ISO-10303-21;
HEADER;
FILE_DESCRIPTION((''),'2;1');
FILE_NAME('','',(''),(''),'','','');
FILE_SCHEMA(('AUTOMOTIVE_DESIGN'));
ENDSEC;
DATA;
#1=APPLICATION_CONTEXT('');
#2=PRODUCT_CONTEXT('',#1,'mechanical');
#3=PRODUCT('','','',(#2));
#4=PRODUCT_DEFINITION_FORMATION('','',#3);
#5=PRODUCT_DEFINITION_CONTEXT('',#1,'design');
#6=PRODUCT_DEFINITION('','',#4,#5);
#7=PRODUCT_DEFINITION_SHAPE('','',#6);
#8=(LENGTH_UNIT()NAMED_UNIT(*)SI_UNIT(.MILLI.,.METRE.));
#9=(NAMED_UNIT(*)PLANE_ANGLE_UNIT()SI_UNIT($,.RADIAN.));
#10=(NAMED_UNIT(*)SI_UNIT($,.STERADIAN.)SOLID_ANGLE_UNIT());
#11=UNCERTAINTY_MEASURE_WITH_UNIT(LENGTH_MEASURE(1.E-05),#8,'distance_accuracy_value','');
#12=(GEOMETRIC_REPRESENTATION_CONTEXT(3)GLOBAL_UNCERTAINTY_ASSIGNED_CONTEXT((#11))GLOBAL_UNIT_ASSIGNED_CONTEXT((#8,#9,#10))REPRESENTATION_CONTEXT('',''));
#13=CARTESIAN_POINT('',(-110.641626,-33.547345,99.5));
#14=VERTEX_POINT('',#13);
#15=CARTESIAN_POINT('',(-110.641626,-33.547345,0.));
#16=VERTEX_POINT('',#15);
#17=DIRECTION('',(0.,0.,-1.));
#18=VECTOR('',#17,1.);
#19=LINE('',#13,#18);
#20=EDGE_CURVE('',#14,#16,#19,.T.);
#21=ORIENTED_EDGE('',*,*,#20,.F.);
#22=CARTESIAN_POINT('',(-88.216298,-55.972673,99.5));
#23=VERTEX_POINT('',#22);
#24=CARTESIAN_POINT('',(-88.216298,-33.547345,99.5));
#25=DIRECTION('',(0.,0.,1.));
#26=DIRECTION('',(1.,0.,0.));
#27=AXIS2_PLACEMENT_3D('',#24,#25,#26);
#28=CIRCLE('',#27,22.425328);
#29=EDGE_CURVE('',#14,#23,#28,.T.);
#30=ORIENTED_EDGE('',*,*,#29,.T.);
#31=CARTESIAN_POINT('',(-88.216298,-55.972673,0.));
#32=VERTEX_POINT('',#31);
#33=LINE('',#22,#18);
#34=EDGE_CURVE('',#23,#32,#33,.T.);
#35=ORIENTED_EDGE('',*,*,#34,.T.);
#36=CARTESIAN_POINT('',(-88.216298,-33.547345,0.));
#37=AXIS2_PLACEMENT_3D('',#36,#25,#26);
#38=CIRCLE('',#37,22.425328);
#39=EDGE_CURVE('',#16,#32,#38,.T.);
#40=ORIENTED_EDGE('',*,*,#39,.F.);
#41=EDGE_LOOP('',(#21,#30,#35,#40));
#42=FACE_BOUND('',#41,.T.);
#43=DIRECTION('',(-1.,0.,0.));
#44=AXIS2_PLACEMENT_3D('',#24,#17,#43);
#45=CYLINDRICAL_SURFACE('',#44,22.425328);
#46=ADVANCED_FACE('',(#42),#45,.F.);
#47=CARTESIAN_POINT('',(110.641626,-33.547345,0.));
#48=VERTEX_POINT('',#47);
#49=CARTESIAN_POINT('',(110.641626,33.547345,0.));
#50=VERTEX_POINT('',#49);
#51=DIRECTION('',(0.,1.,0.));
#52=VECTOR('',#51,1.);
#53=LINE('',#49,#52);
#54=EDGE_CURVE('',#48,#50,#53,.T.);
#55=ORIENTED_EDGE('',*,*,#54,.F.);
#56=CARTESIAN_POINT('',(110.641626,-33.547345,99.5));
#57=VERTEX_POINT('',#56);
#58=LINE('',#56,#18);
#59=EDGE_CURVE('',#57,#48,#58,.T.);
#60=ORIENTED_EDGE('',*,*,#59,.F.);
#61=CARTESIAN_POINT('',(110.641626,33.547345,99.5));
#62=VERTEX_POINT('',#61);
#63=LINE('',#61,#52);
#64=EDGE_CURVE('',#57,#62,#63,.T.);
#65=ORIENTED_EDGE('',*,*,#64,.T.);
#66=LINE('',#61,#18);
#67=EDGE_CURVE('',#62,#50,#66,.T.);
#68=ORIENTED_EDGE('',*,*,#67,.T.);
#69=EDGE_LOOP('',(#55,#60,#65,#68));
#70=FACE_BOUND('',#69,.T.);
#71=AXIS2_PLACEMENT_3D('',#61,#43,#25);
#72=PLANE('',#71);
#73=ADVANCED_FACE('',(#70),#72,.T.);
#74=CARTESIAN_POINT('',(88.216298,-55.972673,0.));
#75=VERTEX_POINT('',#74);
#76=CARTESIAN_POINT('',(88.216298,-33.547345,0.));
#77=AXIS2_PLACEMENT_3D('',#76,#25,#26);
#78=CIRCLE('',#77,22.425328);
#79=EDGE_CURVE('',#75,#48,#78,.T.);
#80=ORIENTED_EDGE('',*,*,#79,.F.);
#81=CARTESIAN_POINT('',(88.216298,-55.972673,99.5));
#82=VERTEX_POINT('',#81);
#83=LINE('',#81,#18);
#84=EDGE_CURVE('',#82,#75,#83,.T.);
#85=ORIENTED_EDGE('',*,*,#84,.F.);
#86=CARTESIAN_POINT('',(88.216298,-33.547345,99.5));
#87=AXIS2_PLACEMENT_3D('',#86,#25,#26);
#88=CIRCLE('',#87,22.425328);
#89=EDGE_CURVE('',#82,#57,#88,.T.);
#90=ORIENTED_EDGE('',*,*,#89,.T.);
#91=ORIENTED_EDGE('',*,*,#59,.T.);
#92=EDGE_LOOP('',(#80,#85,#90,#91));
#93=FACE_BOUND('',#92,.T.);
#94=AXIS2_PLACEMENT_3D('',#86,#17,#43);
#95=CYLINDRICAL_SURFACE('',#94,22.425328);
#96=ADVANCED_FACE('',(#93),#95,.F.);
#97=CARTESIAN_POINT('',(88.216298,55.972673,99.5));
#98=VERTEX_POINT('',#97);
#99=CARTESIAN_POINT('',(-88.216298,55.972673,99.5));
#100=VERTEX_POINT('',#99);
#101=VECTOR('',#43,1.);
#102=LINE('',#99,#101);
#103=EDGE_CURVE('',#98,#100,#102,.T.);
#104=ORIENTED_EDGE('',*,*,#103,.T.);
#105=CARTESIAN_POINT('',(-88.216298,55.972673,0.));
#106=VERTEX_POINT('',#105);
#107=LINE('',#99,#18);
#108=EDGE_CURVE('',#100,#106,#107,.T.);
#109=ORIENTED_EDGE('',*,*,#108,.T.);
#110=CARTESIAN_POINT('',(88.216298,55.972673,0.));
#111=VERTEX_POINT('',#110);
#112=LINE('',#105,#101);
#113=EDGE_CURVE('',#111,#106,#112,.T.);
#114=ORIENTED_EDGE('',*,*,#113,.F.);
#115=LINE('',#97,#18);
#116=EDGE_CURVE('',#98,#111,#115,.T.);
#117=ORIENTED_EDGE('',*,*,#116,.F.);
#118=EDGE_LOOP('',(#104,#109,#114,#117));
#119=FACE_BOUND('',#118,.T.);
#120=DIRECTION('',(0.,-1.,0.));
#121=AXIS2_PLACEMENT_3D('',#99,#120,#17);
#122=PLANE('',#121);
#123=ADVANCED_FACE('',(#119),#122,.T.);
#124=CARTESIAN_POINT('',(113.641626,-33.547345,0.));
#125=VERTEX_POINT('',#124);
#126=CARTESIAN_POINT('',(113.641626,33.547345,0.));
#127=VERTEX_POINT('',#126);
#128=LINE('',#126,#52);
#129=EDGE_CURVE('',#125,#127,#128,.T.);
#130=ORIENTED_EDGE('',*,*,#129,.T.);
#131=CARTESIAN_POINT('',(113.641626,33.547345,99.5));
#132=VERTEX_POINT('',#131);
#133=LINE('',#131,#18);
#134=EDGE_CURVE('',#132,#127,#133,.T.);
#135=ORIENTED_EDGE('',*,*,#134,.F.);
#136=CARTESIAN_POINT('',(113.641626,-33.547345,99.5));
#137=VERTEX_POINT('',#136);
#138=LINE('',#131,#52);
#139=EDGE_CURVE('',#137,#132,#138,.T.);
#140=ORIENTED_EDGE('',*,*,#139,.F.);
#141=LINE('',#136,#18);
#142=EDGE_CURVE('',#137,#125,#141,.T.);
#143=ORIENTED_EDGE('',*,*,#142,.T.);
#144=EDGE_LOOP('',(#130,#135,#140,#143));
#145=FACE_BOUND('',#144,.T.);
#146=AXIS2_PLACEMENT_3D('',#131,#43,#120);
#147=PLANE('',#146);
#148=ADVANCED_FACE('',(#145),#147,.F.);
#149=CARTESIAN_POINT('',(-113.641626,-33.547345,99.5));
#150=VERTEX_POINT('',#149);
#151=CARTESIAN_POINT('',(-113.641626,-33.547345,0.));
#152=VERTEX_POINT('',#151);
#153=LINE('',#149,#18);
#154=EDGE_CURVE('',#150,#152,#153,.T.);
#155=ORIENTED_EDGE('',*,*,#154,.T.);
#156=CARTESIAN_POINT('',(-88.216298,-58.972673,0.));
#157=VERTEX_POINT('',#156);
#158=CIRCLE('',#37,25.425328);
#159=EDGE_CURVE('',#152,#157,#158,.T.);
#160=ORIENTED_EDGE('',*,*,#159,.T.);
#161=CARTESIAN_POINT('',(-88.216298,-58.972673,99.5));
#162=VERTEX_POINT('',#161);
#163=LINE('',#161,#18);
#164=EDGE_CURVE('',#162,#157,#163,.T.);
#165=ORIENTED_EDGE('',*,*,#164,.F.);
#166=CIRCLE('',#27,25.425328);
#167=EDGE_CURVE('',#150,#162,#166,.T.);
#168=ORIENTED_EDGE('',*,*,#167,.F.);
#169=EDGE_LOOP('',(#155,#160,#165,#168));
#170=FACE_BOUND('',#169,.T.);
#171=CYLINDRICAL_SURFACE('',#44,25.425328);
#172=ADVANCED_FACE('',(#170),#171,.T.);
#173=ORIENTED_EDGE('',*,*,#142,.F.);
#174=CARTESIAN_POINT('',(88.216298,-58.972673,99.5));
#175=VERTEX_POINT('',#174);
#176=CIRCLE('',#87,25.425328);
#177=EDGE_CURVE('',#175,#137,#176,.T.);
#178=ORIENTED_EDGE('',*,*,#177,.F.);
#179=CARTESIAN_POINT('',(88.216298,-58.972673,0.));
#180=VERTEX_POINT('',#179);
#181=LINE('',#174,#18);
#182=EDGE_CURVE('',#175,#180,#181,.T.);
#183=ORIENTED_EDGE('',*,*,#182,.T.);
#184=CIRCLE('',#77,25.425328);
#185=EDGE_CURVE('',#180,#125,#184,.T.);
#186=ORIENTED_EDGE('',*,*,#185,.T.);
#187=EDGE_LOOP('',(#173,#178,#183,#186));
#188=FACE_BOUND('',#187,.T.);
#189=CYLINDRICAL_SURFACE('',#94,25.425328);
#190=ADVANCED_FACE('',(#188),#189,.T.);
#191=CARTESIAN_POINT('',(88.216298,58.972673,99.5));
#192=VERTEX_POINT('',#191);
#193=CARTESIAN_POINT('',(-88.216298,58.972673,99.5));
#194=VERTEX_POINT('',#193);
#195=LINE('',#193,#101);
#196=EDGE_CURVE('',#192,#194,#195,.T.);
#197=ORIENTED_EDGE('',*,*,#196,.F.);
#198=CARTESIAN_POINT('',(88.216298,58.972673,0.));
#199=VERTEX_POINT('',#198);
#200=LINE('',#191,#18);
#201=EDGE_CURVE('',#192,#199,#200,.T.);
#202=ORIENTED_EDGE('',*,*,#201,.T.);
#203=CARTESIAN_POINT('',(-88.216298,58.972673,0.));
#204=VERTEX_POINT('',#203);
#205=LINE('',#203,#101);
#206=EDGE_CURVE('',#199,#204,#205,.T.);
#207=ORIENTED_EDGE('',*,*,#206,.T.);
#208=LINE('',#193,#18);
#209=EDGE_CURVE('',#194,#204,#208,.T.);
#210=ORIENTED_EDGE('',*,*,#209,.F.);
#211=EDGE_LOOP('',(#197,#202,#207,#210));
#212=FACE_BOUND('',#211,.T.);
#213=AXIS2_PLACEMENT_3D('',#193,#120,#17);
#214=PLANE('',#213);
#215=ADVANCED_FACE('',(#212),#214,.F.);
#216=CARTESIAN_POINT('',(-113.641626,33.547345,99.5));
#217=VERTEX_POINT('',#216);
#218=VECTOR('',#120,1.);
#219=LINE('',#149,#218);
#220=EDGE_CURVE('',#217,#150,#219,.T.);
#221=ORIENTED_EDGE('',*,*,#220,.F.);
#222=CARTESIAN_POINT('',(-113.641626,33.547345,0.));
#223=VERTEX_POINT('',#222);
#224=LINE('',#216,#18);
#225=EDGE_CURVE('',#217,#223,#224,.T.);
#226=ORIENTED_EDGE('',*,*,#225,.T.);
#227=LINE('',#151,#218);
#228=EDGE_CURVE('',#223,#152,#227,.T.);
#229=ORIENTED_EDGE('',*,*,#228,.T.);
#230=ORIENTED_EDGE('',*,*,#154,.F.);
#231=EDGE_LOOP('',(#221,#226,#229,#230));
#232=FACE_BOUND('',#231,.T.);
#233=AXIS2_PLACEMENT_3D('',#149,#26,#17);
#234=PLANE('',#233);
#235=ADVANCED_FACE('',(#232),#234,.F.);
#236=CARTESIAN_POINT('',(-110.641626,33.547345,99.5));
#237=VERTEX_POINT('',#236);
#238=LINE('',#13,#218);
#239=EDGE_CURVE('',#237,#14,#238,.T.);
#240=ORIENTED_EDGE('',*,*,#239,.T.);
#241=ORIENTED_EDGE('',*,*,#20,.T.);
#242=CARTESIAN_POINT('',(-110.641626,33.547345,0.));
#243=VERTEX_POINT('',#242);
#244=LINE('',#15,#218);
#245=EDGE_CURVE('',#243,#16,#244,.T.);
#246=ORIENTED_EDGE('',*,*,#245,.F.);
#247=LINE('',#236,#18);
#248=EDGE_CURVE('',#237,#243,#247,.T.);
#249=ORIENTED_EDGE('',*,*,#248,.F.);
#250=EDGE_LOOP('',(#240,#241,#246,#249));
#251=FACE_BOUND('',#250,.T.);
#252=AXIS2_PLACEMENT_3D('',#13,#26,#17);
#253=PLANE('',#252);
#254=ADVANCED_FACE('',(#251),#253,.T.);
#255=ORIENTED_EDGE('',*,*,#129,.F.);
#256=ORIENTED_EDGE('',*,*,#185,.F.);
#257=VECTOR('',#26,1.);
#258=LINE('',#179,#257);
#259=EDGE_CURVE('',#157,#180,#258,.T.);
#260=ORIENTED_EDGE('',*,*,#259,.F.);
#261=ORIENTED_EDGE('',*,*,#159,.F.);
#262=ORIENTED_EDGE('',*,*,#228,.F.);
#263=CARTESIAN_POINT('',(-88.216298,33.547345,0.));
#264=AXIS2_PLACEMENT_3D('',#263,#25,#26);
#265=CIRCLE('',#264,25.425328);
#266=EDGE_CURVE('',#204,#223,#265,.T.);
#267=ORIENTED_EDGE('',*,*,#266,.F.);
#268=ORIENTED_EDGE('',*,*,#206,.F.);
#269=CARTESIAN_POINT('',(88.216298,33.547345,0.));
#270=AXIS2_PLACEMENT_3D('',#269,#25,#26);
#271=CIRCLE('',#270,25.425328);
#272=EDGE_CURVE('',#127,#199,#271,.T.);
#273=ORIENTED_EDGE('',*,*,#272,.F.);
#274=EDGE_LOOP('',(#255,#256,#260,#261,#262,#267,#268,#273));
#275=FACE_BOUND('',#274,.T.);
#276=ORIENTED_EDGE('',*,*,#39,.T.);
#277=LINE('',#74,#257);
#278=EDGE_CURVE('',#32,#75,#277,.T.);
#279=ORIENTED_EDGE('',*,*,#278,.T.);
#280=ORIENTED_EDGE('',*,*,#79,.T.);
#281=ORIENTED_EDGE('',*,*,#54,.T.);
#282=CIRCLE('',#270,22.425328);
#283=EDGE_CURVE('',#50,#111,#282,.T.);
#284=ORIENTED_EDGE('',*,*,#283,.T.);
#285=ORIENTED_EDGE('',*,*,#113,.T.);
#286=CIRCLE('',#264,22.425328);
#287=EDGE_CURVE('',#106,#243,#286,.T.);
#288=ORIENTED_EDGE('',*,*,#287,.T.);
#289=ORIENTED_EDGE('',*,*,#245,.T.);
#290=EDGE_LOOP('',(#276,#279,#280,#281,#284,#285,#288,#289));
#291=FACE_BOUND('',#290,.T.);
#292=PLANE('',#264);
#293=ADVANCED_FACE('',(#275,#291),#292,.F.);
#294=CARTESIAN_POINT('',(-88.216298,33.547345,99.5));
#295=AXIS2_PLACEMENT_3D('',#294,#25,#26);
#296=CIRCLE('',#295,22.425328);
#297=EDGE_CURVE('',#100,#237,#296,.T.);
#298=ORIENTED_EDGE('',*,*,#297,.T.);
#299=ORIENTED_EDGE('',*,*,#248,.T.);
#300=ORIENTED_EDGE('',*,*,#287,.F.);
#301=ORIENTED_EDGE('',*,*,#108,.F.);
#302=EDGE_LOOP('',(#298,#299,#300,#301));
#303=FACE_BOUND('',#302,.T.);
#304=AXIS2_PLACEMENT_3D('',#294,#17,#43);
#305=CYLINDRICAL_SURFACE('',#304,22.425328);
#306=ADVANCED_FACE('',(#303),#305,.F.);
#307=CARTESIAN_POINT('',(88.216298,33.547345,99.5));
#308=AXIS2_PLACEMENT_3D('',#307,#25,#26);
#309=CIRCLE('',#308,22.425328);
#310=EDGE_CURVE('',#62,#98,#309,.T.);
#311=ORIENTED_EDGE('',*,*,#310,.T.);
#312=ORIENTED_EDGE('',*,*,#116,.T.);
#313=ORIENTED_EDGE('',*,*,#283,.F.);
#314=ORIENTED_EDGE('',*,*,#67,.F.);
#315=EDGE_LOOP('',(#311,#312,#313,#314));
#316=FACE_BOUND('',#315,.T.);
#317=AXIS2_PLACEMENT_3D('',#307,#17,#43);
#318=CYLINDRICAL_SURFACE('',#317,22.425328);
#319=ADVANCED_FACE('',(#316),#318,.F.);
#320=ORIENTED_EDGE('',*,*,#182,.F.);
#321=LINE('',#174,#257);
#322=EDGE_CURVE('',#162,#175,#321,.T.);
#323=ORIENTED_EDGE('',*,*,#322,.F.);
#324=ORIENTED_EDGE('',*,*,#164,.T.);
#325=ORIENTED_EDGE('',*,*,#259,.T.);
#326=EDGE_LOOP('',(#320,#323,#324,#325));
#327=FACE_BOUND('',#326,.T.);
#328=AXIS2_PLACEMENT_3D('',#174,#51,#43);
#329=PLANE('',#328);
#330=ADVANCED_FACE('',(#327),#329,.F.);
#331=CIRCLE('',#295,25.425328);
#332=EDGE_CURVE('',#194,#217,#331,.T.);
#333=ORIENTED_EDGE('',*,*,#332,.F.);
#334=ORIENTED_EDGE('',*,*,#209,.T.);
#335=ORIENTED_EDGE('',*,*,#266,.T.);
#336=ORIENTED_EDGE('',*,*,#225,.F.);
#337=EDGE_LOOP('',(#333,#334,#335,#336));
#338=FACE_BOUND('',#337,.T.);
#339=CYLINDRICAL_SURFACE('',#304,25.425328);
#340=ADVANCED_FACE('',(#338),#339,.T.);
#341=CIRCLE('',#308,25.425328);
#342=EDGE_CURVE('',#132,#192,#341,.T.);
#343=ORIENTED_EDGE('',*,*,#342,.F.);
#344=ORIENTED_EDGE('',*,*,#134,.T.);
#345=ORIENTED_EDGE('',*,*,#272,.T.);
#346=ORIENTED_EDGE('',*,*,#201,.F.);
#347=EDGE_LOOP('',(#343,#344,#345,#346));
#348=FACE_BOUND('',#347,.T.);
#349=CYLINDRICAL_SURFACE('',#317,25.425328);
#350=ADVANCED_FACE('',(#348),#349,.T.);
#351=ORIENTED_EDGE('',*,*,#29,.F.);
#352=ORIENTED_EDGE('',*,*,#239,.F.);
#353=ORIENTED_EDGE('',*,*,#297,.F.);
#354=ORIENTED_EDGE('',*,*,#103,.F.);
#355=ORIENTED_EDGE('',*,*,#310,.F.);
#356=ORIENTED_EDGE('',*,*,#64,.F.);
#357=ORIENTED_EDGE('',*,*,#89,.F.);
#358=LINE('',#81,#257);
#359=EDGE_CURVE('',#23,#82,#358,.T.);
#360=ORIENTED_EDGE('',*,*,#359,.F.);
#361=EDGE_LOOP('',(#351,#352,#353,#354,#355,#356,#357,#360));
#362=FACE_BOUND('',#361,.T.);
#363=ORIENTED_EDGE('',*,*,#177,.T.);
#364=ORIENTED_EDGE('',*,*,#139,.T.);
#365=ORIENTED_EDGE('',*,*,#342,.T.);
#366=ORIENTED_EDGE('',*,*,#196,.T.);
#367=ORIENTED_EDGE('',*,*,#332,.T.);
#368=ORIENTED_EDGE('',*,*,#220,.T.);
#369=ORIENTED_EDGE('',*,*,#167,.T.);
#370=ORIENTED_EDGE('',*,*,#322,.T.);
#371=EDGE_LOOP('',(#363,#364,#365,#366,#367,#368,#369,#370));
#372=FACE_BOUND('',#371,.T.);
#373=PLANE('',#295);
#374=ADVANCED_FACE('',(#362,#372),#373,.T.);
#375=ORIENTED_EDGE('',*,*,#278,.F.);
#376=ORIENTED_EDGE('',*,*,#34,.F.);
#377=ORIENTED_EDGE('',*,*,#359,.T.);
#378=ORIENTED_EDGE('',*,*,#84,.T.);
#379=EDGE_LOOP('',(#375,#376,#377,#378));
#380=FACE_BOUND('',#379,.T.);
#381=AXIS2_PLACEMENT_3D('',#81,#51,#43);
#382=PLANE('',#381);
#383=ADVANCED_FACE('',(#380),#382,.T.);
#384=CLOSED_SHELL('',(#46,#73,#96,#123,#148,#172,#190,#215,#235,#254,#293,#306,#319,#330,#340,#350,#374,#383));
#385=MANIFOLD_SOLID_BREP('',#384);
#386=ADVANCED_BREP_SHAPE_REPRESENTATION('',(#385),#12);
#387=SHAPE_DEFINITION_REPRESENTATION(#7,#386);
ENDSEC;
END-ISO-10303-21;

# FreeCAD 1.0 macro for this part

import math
import FreeCAD as App
import Part
import Sketcher

V = App.Vector
Q = App.Units.Quantity

doc = App.newDocument("Part")
body = doc.addObject("PartDesign::Body", "Body")

# Sketch on XY plane
sketch1 = body.newObject("Sketcher::SketchObject", "Sketch")
sketch1.AttachmentSupport = (doc.getObject("XY_Plane"), [""])
sketch1.MapMode = "FlatFace"
sketch1.addGeometry(Part.LineSegment(V(88, 59, 0), V(-88, 59, 0)), False)
sketch1.addGeometry(Part.ArcOfCircle(Part.Circle(V(-88, 34, 0), V(0, 0, 1), 25), math.radians(90), math.radians(180)), False)
sketch1.addGeometry(Part.LineSegment(V(-114, 34, 0), V(-114, -34, 0)), False)
sketch1.addGeometry(Part.ArcOfCircle(Part.Circle(V(-88, -34, 0), V(0, 0, 1), 25), math.radians(180), math.radians(270)), False)
sketch1.addGeometry(Part.LineSegment(V(-88, -59, 0), V(88, -59, 0)), False)
sketch1.addGeometry(Part.ArcOfCircle(Part.Circle(V(88, -34, 0), V(0, 0, 1), 25), math.radians(-90), math.radians(0)), False)
sketch1.addGeometry(Part.LineSegment(V(114, -34, 0), V(114, 34, 0)), False)
sketch1.addGeometry(Part.ArcOfCircle(Part.Circle(V(88, 34, 0), V(0, 0, 1), 25), math.radians(0), math.radians(90)), False)
sketch1.addGeometry(Part.LineSegment(V(-88, 56, 0), V(88, 56, 0)), False)
sketch1.addGeometry(Part.ArcOfCircle(Part.Circle(V(88, 34, 0), V(0, 0, 1), 22), math.radians(0), math.radians(90)), False)
sketch1.addGeometry(Part.LineSegment(V(111, 34, 0), V(111, -34, 0)), False)
sketch1.addGeometry(Part.ArcOfCircle(Part.Circle(V(88, -34, 0), V(0, 0, 1), 22), math.radians(-90), math.radians(0)), False)
sketch1.addGeometry(Part.LineSegment(V(88, -56, 0), V(-88, -56, 0)), False)
sketch1.addGeometry(Part.ArcOfCircle(Part.Circle(V(-88, -34, 0), V(0, 0, 1), 22), math.radians(-180), math.radians(-90)), False)
sketch1.addGeometry(Part.LineSegment(V(-111, -34, 0), V(-111, 34, 0)), False)
sketch1.addGeometry(Part.ArcOfCircle(Part.Circle(V(-88, 34, 0), V(0, 0, 1), 22), math.radians(90), math.radians(180)), False)
sketch1.addConstraint(Sketcher.Constraint("Tangent", 0, 2, 1, 1))
sketch1.addConstraint(Sketcher.Constraint("Tangent", 1, 2, 2, 1))
sketch1.addConstraint(Sketcher.Constraint("Tangent", 2, 2, 3, 1))
sketch1.addConstraint(Sketcher.Constraint("Tangent", 3, 2, 4, 1))
sketch1.addConstraint(Sketcher.Constraint("Tangent", 4, 2, 5, 1))
sketch1.addConstraint(Sketcher.Constraint("Tangent", 5, 2, 6, 1))
sketch1.addConstraint(Sketcher.Constraint("Tangent", 6, 2, 7, 1))
sketch1.addConstraint(Sketcher.Constraint("Tangent", 7, 2, 0, 1))
sketch1.addConstraint(Sketcher.Constraint("Tangent", 8, 2, 9, 2))
sketch1.addConstraint(Sketcher.Constraint("Tangent", 9, 1, 10, 1))
sketch1.addConstraint(Sketcher.Constraint("Tangent", 10, 2, 11, 2))
sketch1.addConstraint(Sketcher.Constraint("Tangent", 11, 1, 12, 1))
sketch1.addConstraint(Sketcher.Constraint("Tangent", 12, 2, 13, 2))
sketch1.addConstraint(Sketcher.Constraint("Tangent", 13, 1, 14, 1))
sketch1.addConstraint(Sketcher.Constraint("Tangent", 14, 2, 15, 2))
sketch1.addConstraint(Sketcher.Constraint("Tangent", 15, 1, 8, 1))
sketch1.addConstraint(Sketcher.Constraint("Horizontal", 0))
sketch1.addConstraint(Sketcher.Constraint("Vertical", 2))
sketch1.addConstraint(Sketcher.Constraint("Horizontal", 4))
sketch1.addConstraint(Sketcher.Constraint("Vertical", 6))
sketch1.addConstraint(Sketcher.Constraint("Horizontal", 8))
sketch1.addConstraint(Sketcher.Constraint("Vertical", 10))
sketch1.addConstraint(Sketcher.Constraint("Horizontal", 12))
sketch1.addConstraint(Sketcher.Constraint("Vertical", 14))
sketch1.addConstraint(Sketcher.Constraint("Coincident", 9, 3, 7, 3))
sketch1.addConstraint(Sketcher.Constraint("Coincident", 11, 3, 5, 3))
sketch1.addConstraint(Sketcher.Constraint("Coincident", 13, 3, 3, 3))
sketch1.addConstraint(Sketcher.Constraint("Equal", 1, 3))
sketch1.addConstraint(Sketcher.Constraint("Equal", 3, 5))
sketch1.addConstraint(Sketcher.Constraint("Equal", 5, 7))
sketch1.addConstraint(Sketcher.Constraint("Equal", 13, 15))
sketch1.addConstraint(Sketcher.Constraint("Symmetric", 1, 3, 5, 3, -1, 1))
sketch1.addConstraint(Sketcher.Constraint("DistanceY", 8, 2, 7, 2, Q("3 mm")))
sketch1.addConstraint(Sketcher.Constraint("Radius", 1, Q("25.425328 mm")))
sketch1.addConstraint(Sketcher.Constraint("DistanceY", 2, 2, 2, 1, Q("67.09469 mm")))
sketch1.addConstraint(Sketcher.Constraint("DistanceX", 0, 2, 0, 1, Q("176.432595 mm")))
pad1 = body.newObject("PartDesign::Pad", "Pad")
pad1.Profile = sketch1
pad1.Length = 99.5

doc.recompute()
